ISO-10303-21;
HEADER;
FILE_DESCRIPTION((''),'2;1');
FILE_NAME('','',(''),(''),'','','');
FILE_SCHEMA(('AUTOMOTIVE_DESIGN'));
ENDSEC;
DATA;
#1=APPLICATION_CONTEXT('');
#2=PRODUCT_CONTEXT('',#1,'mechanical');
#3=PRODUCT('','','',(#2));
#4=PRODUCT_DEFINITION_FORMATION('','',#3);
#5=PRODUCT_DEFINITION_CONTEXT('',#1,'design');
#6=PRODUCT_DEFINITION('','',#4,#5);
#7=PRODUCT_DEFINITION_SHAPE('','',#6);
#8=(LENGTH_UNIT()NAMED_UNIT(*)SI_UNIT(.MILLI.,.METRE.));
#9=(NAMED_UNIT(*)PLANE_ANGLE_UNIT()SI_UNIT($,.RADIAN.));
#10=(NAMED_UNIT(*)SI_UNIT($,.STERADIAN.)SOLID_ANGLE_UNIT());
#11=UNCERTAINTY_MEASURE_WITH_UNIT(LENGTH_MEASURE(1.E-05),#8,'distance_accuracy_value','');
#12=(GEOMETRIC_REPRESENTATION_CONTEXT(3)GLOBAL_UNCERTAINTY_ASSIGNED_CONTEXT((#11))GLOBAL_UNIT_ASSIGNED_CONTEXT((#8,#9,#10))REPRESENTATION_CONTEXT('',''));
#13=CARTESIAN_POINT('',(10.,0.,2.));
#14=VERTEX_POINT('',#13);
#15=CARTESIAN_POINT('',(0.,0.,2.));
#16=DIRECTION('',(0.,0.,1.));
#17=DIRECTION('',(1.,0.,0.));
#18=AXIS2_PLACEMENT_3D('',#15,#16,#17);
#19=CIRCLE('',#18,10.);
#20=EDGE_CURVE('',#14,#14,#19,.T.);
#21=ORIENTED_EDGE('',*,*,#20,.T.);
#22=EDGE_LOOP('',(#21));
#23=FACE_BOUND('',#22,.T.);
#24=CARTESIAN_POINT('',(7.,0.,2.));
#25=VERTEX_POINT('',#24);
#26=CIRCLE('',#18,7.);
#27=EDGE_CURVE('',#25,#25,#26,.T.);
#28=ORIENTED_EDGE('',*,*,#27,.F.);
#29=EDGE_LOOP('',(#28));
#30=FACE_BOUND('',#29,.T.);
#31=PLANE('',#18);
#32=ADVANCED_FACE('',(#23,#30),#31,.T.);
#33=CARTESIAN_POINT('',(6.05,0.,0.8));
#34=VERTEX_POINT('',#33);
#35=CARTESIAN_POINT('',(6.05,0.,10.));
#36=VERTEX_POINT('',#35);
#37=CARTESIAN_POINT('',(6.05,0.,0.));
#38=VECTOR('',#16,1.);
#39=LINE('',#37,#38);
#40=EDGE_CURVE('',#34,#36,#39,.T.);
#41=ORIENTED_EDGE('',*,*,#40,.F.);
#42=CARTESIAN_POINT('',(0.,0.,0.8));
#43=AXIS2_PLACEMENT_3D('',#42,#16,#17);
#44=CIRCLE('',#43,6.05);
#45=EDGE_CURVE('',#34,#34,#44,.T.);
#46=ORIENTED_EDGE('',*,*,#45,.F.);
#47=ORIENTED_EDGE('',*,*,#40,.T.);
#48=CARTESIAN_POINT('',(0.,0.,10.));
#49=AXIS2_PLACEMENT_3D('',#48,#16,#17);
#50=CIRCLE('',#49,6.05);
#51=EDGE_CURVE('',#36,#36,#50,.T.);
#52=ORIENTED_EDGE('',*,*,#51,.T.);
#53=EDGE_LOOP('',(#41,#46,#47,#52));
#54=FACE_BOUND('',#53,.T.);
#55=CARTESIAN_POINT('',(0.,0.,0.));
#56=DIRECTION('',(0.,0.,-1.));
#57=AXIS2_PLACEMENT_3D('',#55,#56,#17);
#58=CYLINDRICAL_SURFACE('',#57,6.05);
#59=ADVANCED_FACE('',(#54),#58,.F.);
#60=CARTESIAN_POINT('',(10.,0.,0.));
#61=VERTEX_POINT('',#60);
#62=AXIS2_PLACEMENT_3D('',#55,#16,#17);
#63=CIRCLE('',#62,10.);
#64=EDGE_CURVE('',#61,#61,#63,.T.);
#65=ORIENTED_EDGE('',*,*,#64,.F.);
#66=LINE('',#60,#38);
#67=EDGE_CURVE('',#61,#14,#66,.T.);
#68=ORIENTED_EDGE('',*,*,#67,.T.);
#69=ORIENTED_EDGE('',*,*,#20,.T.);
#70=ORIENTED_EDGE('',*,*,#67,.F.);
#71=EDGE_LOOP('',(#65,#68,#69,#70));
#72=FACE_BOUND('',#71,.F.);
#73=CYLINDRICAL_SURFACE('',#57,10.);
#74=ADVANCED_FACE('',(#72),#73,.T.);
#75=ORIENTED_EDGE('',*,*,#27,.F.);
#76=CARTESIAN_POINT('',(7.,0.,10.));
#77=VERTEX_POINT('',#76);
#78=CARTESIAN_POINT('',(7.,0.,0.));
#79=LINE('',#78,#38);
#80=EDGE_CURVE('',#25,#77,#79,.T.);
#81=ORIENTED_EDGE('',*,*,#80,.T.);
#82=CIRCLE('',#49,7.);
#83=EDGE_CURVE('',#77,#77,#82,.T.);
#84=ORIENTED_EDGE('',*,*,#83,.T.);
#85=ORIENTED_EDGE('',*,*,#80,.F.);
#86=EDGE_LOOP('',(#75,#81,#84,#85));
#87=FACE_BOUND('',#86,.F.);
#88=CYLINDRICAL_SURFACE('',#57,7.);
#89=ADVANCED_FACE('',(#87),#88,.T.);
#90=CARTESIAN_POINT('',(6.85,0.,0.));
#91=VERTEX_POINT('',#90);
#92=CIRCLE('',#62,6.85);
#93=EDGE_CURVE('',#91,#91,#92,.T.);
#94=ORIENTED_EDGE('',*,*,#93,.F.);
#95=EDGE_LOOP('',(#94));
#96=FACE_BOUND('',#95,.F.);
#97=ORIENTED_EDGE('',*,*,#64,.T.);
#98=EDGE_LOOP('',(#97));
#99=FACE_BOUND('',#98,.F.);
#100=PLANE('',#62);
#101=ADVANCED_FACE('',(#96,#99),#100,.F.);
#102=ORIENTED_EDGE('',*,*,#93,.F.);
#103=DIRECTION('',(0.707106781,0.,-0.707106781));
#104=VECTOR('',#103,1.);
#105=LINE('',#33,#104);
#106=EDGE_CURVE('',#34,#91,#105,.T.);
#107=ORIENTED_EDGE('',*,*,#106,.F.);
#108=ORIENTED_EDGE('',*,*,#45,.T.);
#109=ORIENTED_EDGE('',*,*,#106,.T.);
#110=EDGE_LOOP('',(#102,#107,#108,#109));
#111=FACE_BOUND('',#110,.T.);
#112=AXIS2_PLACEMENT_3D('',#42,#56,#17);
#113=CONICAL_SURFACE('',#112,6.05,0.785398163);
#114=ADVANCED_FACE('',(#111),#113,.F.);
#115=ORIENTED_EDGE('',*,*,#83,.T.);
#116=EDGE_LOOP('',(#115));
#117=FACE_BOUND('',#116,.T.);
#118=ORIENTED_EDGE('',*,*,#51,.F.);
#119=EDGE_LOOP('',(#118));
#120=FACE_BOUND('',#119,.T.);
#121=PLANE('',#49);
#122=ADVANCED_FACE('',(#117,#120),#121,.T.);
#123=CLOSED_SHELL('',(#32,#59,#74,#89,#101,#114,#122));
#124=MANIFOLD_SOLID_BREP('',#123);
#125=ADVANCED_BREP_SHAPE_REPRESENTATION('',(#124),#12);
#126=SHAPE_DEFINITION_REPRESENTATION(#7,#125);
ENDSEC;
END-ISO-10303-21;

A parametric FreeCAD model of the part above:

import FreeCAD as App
import Part
import Sketcher

V = App.Vector


def edges_at(feature, points):
    """Names of the edges that pass closest to the given points."""
    edges = feature.Shape.Edges
    near = lambda p: min(range(len(edges)), key=lambda i: edges[i].distToShape(Part.Vertex(*p))[0])
    return sorted({f"Edge{near(p) + 1}" for p in points})

doc = App.newDocument("Part")
body = doc.addObject("PartDesign::Body", "Body")

# Sketch on XY plane
sketch1 = doc.addObject("Sketcher::SketchObject", "Sketch")
body.addObject(sketch1)
sketch1.AttachmentSupport = (doc.XY_Plane, [""])
sketch1.MapMode = "FlatFace"
sketch1.addGeometry(Part.Circle(V(0, 0, 0), V(0, 0, 1), 10), False)
sketch1.addGeometry(Part.Circle(V(0, 0, 0), V(0, 0, 1), 7), False)
sketch1.addConstraint(Sketcher.Constraint("Coincident", 0, 3, -1, 1))
sketch1.addConstraint(Sketcher.Constraint("Coincident", 1, 3, -1, 1))
sketch1.addConstraint(Sketcher.Constraint("Diameter", 0, 20.0))
sketch1.addConstraint(Sketcher.Constraint("Diameter", 1, 14.0))
pad1 = doc.addObject("PartDesign::Pad", "Pad")
body.addObject(pad1)
pad1.Profile = sketch1
pad1.Length = 2

# Sketch on XY plane
sketch2 = doc.addObject("Sketcher::SketchObject", "Sketch001")
body.addObject(sketch2)
sketch2.AttachmentSupport = (doc.XY_Plane, [""])
sketch2.MapMode = "FlatFace"
sketch2.addGeometry(Part.Circle(V(0, 0, 0), V(0, 0, 1), 7), False)
sketch2.addGeometry(Part.Circle(V(0, 0, 0), V(0, 0, 1), 6), False)
sketch2.addConstraint(Sketcher.Constraint("Coincident", 0, 3, -1, 1))
sketch2.addConstraint(Sketcher.Constraint("Coincident", 1, 3, -1, 1))
sketch2.addConstraint(Sketcher.Constraint("Diameter", 0, 14.0))
sketch2.addConstraint(Sketcher.Constraint("Diameter", 1, 12.1))
pad2 = doc.addObject("PartDesign::Pad", "Pad001")
body.addObject(pad2)
pad2.Profile = sketch2
pad2.Length = 10
doc.recompute()

chamfer = doc.addObject("PartDesign::Chamfer", "Chamfer")
body.addObject(chamfer)
chamfer.Base = (pad2, edges_at(pad2, [(-6.05, 0, 0)]))
chamfer.Size = 0.8

doc.recompute()
